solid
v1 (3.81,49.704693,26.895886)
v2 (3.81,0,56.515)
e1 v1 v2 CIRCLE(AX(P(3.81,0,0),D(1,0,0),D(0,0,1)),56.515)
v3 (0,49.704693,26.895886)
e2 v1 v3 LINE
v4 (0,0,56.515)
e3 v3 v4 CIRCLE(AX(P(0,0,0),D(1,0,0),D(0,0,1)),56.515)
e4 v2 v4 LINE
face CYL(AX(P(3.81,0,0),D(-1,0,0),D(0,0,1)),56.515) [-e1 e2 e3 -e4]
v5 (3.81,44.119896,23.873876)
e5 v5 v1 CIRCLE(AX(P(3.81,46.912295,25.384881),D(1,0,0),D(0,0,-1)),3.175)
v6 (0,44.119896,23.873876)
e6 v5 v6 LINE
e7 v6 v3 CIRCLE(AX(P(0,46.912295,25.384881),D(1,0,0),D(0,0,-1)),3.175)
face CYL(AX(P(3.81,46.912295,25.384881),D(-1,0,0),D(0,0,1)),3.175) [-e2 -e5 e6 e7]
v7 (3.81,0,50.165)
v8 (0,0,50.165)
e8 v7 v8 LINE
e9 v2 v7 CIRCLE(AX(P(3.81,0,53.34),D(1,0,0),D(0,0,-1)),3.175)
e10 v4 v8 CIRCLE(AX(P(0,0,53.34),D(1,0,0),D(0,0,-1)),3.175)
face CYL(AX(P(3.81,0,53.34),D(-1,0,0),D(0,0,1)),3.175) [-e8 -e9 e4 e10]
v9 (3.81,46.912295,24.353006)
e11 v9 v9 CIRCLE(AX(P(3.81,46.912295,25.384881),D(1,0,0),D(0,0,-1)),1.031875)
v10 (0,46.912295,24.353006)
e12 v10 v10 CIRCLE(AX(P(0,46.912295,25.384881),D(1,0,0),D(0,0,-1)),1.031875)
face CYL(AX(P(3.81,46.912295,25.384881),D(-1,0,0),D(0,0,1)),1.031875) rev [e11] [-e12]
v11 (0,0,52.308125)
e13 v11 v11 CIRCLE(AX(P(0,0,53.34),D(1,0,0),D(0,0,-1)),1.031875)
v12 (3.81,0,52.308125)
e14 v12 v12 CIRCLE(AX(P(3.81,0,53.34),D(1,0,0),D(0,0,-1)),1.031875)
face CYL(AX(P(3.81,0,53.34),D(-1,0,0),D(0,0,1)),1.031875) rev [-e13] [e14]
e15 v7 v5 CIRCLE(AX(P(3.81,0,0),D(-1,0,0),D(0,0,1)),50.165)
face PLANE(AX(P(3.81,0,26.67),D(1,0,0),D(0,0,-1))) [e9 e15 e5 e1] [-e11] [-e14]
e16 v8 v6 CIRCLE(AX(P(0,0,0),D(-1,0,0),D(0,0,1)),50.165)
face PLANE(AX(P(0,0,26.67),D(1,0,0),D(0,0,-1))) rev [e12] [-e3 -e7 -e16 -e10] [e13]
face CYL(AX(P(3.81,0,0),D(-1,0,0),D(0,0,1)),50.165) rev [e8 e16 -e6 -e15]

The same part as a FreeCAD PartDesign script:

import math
import FreeCAD as App
import Part
import Sketcher

V = App.Vector
Q = App.Units.Quantity

doc = App.newDocument("Part")
body = doc.addObject("PartDesign::Body", "Body")

# Sketch on YZ plane
sketch1 = doc.addObject("Sketcher::SketchObject", "Sketch")
body.addObject(sketch1)
sketch1.AttachmentSupport = (doc.YZ_Plane, [""])
sketch1.MapMode = "FlatFace"
sketch1.addGeometry(Part.ArcOfCircle(Part.Circle(V(0, 0, 0), V(0, 0, 1), 50.2), math.radians(28), math.radians(90)), False)
sketch1.addGeometry(Part.ArcOfCircle(Part.Circle(V(46.9, 25.4, 0), V(0, 0, 1), 3.2), math.radians(-152), math.radians(28)), False)
sketch1.addGeometry(Part.ArcOfCircle(Part.Circle(V(0, 0, 0), V(0, 0, 1), 56.5), math.radians(28), math.radians(90)), False)
sketch1.addGeometry(Part.ArcOfCircle(Part.Circle(V(0, 53.3, 0), V(0, 0, 1), 3.2), math.radians(90), math.radians(270)), False)
sketch1.addGeometry(Part.Circle(V(0, 53.3, 0), V(0, 0, 1), 1), False)
sketch1.addGeometry(Part.Circle(V(46.9, 25.4, 0), V(0, 0, 1), 1), False)
sketch1.addConstraint(Sketcher.Constraint("Tangent", 0, 1, 1, 1))
sketch1.addConstraint(Sketcher.Constraint("Tangent", 1, 2, 2, 1))
sketch1.addConstraint(Sketcher.Constraint("Tangent", 2, 2, 3, 1))
sketch1.addConstraint(Sketcher.Constraint("Tangent", 3, 2, 0, 2))
sketch1.addConstraint(Sketcher.Constraint("Coincident", 0, 3, -1, 1))
sketch1.addConstraint(Sketcher.Constraint("Coincident", 2, 3, -1, 1))
sketch1.addConstraint(Sketcher.Constraint("Coincident", 4, 3, 3, 3))
sketch1.addConstraint(Sketcher.Constraint("Coincident", 5, 3, 1, 3))
sketch1.addConstraint(Sketcher.Constraint("Equal", 4, 5))
sketch1.addConstraint(Sketcher.Constraint("PointOnObject", 3, 3, -2))
sketch1.addConstraint(Sketcher.Constraint("Radius", 0, Q("1.975 in")))
sketch1.addConstraint(Sketcher.Constraint("Radius", 1, Q("0.125 in")))
sketch1.addConstraint(Sketcher.Constraint("Diameter", 4, 2.06375))
sketch1.addConstraint(Sketcher.Constraint("DistanceX", 1, 3, 1, 2, 2.792399))
pad1 = doc.addObject("PartDesign::Pad", "Pad")
body.addObject(pad1)
pad1.Profile = sketch1
pad1.Length = Q("0.15 in")

doc.recompute()
